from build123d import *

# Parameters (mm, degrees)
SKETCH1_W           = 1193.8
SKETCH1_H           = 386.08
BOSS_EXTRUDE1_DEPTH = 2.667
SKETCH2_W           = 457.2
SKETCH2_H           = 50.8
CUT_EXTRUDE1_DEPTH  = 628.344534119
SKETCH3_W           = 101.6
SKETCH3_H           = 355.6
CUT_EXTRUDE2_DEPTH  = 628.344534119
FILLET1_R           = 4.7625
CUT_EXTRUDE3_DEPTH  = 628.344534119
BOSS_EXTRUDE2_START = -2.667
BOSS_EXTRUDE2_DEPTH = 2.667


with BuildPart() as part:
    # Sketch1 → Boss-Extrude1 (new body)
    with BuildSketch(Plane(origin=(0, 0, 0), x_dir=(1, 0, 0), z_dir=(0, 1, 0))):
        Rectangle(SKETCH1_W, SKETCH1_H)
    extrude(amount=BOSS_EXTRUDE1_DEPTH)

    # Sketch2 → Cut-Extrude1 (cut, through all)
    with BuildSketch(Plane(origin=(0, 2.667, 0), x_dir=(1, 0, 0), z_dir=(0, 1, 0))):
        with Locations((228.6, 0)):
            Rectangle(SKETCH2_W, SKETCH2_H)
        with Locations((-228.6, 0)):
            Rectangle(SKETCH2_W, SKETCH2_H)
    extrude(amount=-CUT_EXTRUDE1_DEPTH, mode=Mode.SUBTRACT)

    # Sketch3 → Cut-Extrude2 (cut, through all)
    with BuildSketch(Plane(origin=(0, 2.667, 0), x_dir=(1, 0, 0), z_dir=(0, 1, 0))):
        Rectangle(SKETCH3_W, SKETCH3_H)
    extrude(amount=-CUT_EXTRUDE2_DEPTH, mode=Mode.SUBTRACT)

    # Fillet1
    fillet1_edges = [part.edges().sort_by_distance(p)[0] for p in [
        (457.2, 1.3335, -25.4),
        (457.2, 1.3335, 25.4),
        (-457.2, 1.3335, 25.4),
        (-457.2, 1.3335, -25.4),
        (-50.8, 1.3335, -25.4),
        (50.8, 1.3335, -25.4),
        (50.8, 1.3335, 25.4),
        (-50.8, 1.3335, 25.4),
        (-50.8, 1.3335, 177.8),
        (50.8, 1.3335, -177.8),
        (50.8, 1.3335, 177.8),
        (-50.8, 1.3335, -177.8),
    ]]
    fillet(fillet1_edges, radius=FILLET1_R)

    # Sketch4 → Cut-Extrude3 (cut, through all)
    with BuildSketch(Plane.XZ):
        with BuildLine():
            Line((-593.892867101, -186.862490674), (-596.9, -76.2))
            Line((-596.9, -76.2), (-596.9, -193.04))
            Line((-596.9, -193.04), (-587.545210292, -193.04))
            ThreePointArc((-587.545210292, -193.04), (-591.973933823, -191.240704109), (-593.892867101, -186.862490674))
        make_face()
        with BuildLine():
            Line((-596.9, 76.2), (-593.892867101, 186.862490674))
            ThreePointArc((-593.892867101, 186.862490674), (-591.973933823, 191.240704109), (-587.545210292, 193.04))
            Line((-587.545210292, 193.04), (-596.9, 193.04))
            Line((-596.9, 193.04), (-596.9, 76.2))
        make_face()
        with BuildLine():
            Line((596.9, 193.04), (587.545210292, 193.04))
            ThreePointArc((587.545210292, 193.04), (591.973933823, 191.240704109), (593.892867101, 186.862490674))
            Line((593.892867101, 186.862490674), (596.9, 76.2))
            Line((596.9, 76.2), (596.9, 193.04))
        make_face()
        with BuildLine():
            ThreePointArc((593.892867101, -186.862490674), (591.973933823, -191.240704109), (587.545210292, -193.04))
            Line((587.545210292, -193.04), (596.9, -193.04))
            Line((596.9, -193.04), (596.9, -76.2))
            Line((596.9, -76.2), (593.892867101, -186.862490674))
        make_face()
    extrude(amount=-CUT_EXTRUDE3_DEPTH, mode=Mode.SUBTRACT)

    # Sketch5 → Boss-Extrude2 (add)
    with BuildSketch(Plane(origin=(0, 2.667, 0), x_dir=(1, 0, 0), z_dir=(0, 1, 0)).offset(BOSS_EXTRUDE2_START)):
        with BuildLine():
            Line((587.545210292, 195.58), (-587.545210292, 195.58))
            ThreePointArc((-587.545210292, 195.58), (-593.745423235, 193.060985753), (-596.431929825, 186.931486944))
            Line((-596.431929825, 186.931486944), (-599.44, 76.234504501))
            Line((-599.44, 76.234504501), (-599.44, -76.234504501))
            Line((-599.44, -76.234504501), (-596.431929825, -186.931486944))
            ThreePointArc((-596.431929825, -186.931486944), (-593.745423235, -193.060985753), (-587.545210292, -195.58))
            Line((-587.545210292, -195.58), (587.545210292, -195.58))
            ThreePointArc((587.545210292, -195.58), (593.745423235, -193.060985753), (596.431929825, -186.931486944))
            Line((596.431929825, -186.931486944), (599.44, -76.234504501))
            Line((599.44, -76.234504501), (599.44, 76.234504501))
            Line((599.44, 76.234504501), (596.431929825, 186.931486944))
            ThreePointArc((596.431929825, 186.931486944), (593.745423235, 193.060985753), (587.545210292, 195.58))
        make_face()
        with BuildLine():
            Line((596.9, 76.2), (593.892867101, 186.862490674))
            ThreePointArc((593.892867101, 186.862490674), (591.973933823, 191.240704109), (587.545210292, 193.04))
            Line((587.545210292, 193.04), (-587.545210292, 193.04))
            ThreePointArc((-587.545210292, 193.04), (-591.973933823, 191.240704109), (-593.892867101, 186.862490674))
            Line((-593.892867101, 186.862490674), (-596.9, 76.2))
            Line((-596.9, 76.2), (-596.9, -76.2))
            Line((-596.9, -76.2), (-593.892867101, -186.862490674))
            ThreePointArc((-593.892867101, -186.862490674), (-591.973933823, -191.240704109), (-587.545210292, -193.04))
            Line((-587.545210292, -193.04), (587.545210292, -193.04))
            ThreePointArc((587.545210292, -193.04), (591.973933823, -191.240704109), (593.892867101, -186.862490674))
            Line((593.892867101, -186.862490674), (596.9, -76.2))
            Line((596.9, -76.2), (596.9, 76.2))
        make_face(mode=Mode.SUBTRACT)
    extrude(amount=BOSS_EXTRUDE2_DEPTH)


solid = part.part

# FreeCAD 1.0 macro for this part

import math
import FreeCAD as App
import Part
import Sketcher
Q = App.Units.Quantity


def edges_at(feature, points):
    """Names of the edges that pass closest to the given points."""
    edges = feature.Shape.Edges
    near = lambda p: min(range(len(edges)), key=lambda i: edges[i].distToShape(Part.Vertex(*p))[0])
    return sorted({f"Edge{near(p) + 1}" for p in points})


def add_polygon(sketch, points):
    """Adds a closed chain of lines whose ends are joined by coincident constraints."""
    first, n = sketch.GeometryCount, len(points)
    for a, b in zip(points, points[1:] + points[:1]):
        sketch.addGeometry(Part.LineSegment(App.Vector(*a, 0), App.Vector(*b, 0)), False)
    for i in range(n):
        sketch.addConstraint(Sketcher.Constraint("Coincident", first + i, 2, first + (i + 1) % n, 1))

doc = App.newDocument("Part")
params = doc.addObject("Spreadsheet::Sheet", "Params")
for row, (alias, value) in enumerate([
    ("sketch1_width", "47 in"),
    ("sketch1_height", "15.2 in"),
    ("pad1_length", "0.105 in"),
    ("sketch2_width", "36 in"),
    ("sketch2_height", "2 in"),
    ("sketch3_width", "4 in"),
    ("sketch3_height", "14 in"),
    ("fillet_radius", "0.1875 in"),
    ("sketch4_radius", "0.25 in"),
    ("sketch4_height", "4.6 in"),
    ("sketch5_height", "6 in"),
    ("sketch5_radius", "0.35 in"),
    ("sketch5_radius2", "0.25 in"),
    ("pad2_length", "0.105 in"),
], start=1):
    params.set(f"A{row}", alias)
    params.set(f"B{row}", "=" + value)
    params.setAlias(f"B{row}", alias)

body = doc.addObject("PartDesign::Body", "Body")

sketch1 = body.newObject("Sketcher::SketchObject", "Sketch")
sketch1.AttachmentSupport = (doc.getObject("XZ_Plane"), [""])
sketch1.MapMode = "FlatFace"
add_polygon(sketch1, [(-596.9, -193.04), (-596.9, 193.04), (596.9, 193.04), (596.9, -193.04)])
sketch1.addConstraint(Sketcher.Constraint("Vertical", 0))
sketch1.addConstraint(Sketcher.Constraint("Horizontal", 1))
sketch1.addConstraint(Sketcher.Constraint("Vertical", 2))
sketch1.addConstraint(Sketcher.Constraint("Horizontal", 3))
sketch1.addConstraint(Sketcher.Constraint("Symmetric", 0, 2, 2, 2, -1, 1))
sketch1.addConstraint(Sketcher.Constraint("DistanceX", 1, 1, 1, 2, Q("47 in")))
sketch1.addConstraint(Sketcher.Constraint("DistanceY", 0, 1, 0, 2, Q("15.2 in")))
sketch1.setExpression("Constraints[9]", "Params.sketch1_width")
sketch1.setExpression("Constraints[10]", "Params.sketch1_height")
pad1 = body.newObject("PartDesign::Pad", "Pad")
pad1.Profile = sketch1
pad1.setExpression("Length", "Params.pad1_length")
pad1.Reversed = True

sketch2 = body.newObject("Sketcher::SketchObject", "Sketch001")
sketch2.AttachmentSupport = (doc.getObject("XZ_Plane"), [""])
sketch2.MapMode = "FlatFace"
sketch2.AttachmentOffset = App.Placement(App.Vector(0, 0, -0.105 * 25.4), App.Rotation())
add_polygon(sketch2, [(457.2, 25.4), (457.2, -25.4), (-457.2, -25.4), (-457.2, 25.4)])
sketch2.addConstraint(Sketcher.Constraint("Vertical", 0))
sketch2.addConstraint(Sketcher.Constraint("Horizontal", 1))
sketch2.addConstraint(Sketcher.Constraint("Vertical", 2))
sketch2.addConstraint(Sketcher.Constraint("Horizontal", 3))
sketch2.addConstraint(Sketcher.Constraint("Symmetric", 0, 2, 2, 2, -1, 1))
sketch2.addConstraint(Sketcher.Constraint("DistanceX", 1, 2, 1, 1, Q("36 in")))
sketch2.addConstraint(Sketcher.Constraint("DistanceY", 0, 2, 0, 1, Q("2 in")))
sketch2.setExpression("Constraints[9]", "Params.sketch2_width")
sketch2.setExpression("Constraints[10]", "Params.sketch2_height")
pocket1 = body.newObject("PartDesign::Pocket", "Pocket")
pocket1.Profile = sketch2
pocket1.Type = "ThroughAll"
pocket1.Reversed = True

sketch3 = body.newObject("Sketcher::SketchObject", "Sketch002")
sketch3.AttachmentSupport = (doc.getObject("XZ_Plane"), [""])
sketch3.MapMode = "FlatFace"
sketch3.AttachmentOffset = App.Placement(App.Vector(0, 0, -0.105 * 25.4), App.Rotation())
add_polygon(sketch3, [(-50.8, -177.8), (-50.8, 177.8), (50.8, 177.8), (50.8, -177.8)])
sketch3.addConstraint(Sketcher.Constraint("Vertical", 0))
sketch3.addConstraint(Sketcher.Constraint("Horizontal", 1))
sketch3.addConstraint(Sketcher.Constraint("Vertical", 2))
sketch3.addConstraint(Sketcher.Constraint("Horizontal", 3))
sketch3.addConstraint(Sketcher.Constraint("Symmetric", 0, 2, 2, 2, -1, 1))
sketch3.addConstraint(Sketcher.Constraint("DistanceX", 1, 1, 1, 2, Q("4 in")))
sketch3.addConstraint(Sketcher.Constraint("DistanceY", 0, 1, 0, 2, Q("14 in")))
sketch3.setExpression("Constraints[9]", "Params.sketch3_width")
sketch3.setExpression("Constraints[10]", "Params.sketch3_height")
pocket2 = body.newObject("PartDesign::Pocket", "Pocket001")
pocket2.Profile = sketch3
pocket2.Type = "ThroughAll"
pocket2.Reversed = True
doc.recompute()

fillet = body.newObject("PartDesign::Fillet", "Fillet")
fillet.Base = (pocket2, edges_at(pocket2, [
    (457.2, 1.333, -25.4),
    (457.2, 1.333, 25.4),
    (-457.2, 1.333, 25.4),
    (-457.2, 1.333, -25.4),
    (-50.8, 1.333, -25.4),
    (50.8, 1.333, -25.4),
    (50.8, 1.333, 25.4),
    (-50.8, 1.333, 25.4),
    (-50.8, 1.333, 177.8),
    (50.8, 1.333, -177.8),
    (50.8, 1.333, 177.8),
    (-50.8, 1.333, -177.8),
]))
fillet.setExpression("Radius", "Params.fillet_radius")

sketch4 = body.newObject("Sketcher::SketchObject", "Sketch003")
sketch4.AttachmentSupport = (doc.getObject("XZ_Plane"), [""])
sketch4.MapMode = "FlatFace"
sketch4.addGeometry(Part.LineSegment(App.Vector(-593.892867, -186.862491, 0), App.Vector(-596.9, -76.2, 0)), False)
sketch4.addGeometry(Part.LineSegment(App.Vector(-596.9, -76.2, 0), App.Vector(-596.9, -193.04, 0)), False)
sketch4.addGeometry(Part.LineSegment(App.Vector(-596.9, -193.04, 0), App.Vector(-587.54521, -193.04, 0)), False)
sketch4.addGeometry(Part.ArcOfCircle(Part.Circle(App.Vector(-587.54521, -186.69, 0), App.Vector(0, 0, 1), 6.35), math.radians(-178.443433), math.radians(-90)), False)
sketch4.addGeometry(Part.LineSegment(App.Vector(-596.9, 76.2, 0), App.Vector(-593.892867, 186.862491, 0)), False)
sketch4.addGeometry(Part.ArcOfCircle(Part.Circle(App.Vector(-587.54521, 186.69, 0), App.Vector(0, 0, 1), 6.35), math.radians(90), math.radians(178.443433)), False)
sketch4.addGeometry(Part.LineSegment(App.Vector(-587.54521, 193.04, 0), App.Vector(-596.9, 193.04, 0)), False)
sketch4.addGeometry(Part.LineSegment(App.Vector(-596.9, 193.04, 0), App.Vector(-596.9, 76.2, 0)), False)
sketch4.addGeometry(Part.LineSegment(App.Vector(596.9, 193.04, 0), App.Vector(587.54521, 193.04, 0)), False)
sketch4.addGeometry(Part.ArcOfCircle(Part.Circle(App.Vector(587.54521, 186.69, 0), App.Vector(0, 0, 1), 6.35), math.radians(1.556567), math.radians(90)), False)
sketch4.addGeometry(Part.LineSegment(App.Vector(593.892867, 186.862491, 0), App.Vector(596.9, 76.2, 0)), False)
sketch4.addGeometry(Part.LineSegment(App.Vector(596.9, 76.2, 0), App.Vector(596.9, 193.04, 0)), False)
sketch4.addGeometry(Part.ArcOfCircle(Part.Circle(App.Vector(587.54521, -186.69, 0), App.Vector(0, 0, 1), 6.35), math.radians(-90), math.radians(-1.556567)), False)
sketch4.addGeometry(Part.LineSegment(App.Vector(587.54521, -193.04, 0), App.Vector(596.9, -193.04, 0)), False)
sketch4.addGeometry(Part.LineSegment(App.Vector(596.9, -193.04, 0), App.Vector(596.9, -76.2, 0)), False)
sketch4.addGeometry(Part.LineSegment(App.Vector(596.9, -76.2, 0), App.Vector(593.892867, -186.862491, 0)), False)
sketch4.addConstraint(Sketcher.Constraint("Coincident", 0, 2, 1, 1))
sketch4.addConstraint(Sketcher.Constraint("Coincident", 1, 2, 2, 1))
sketch4.addConstraint(Sketcher.Constraint("Tangent", 2, 2, 3, 2))
sketch4.addConstraint(Sketcher.Constraint("Tangent", 3, 1, 0, 1))
sketch4.addConstraint(Sketcher.Constraint("Tangent", 4, 2, 5, 2))
sketch4.addConstraint(Sketcher.Constraint("Tangent", 5, 1, 6, 1))
sketch4.addConstraint(Sketcher.Constraint("Coincident", 6, 2, 7, 1))
sketch4.addConstraint(Sketcher.Constraint("Coincident", 7, 2, 4, 1))
sketch4.addConstraint(Sketcher.Constraint("Tangent", 8, 2, 9, 2))
sketch4.addConstraint(Sketcher.Constraint("Tangent", 9, 1, 10, 1))
sketch4.addConstraint(Sketcher.Constraint("Coincident", 10, 2, 11, 1))
sketch4.addConstraint(Sketcher.Constraint("Coincident", 11, 2, 8, 1))
sketch4.addConstraint(Sketcher.Constraint("Tangent", 12, 1, 13, 1))
sketch4.addConstraint(Sketcher.Constraint("Coincident", 13, 2, 14, 1))
sketch4.addConstraint(Sketcher.Constraint("Coincident", 14, 2, 15, 1))
sketch4.addConstraint(Sketcher.Constraint("Tangent", 15, 2, 12, 2))
sketch4.addConstraint(Sketcher.Constraint("Vertical", 1))
sketch4.addConstraint(Sketcher.Constraint("Horizontal", 2))
sketch4.addConstraint(Sketcher.Constraint("Horizontal", 6))
sketch4.addConstraint(Sketcher.Constraint("Vertical", 7))
sketch4.addConstraint(Sketcher.Constraint("Horizontal", 8))
sketch4.addConstraint(Sketcher.Constraint("Vertical", 11))
sketch4.addConstraint(Sketcher.Constraint("Horizontal", 13))
sketch4.addConstraint(Sketcher.Constraint("Vertical", 14))
sketch4.addConstraint(Sketcher.Constraint("Equal", 3, 5))
sketch4.addConstraint(Sketcher.Constraint("Equal", 5, 9))
sketch4.addConstraint(Sketcher.Constraint("Equal", 9, 12))
sketch4.addConstraint(Sketcher.Constraint("Symmetric", 3, 3, 9, 3, -1, 1))
sketch4.addConstraint(Sketcher.Constraint("Symmetric", 5, 3, 12, 3, -1, 1))
sketch4.addConstraint(Sketcher.Constraint("Symmetric", 0, 2, 10, 2, -1, 1))
sketch4.addConstraint(Sketcher.Constraint("Symmetric", 7, 2, 14, 2, -1, 1))
sketch4.addConstraint(Sketcher.Constraint("Symmetric", 5, 3, 9, 3, -2))
sketch4.addConstraint(Sketcher.Constraint("Symmetric", 7, 2, 10, 2, -2))
sketch4.addConstraint(Sketcher.Constraint("Radius", 3, Q("0.25 in")))
sketch4.addConstraint(Sketcher.Constraint("DistanceY", 1, 2, 1, 1, Q("4.6 in")))
sketch4.addConstraint(Sketcher.Constraint("DistanceY", 0, 2, -1, 1, Q("3 in")))
sketch4.addConstraint(Sketcher.Constraint("DistanceX", 0, 2, -1, 1, Q("23.5 in")))
sketch4.addConstraint(Sketcher.Constraint("DistanceX", 2, 1, 2, 2, 9.35479))
sketch4.setExpression("Constraints[33]", "Params.sketch4_radius")
sketch4.setExpression("Constraints[34]", "Params.sketch4_height")
pocket3 = body.newObject("PartDesign::Pocket", "Pocket002")
pocket3.Profile = sketch4
pocket3.Type = "ThroughAll"

sketch5 = body.newObject("Sketcher::SketchObject", "Sketch004")
sketch5.AttachmentSupport = (doc.getObject("XZ_Plane"), [""])
sketch5.MapMode = "FlatFace"
sketch5.addGeometry(Part.LineSegment(App.Vector(587.54521, -195.58, 0), App.Vector(-587.54521, -195.58, 0)), False)
sketch5.addGeometry(Part.ArcOfCircle(Part.Circle(App.Vector(-587.54521, -186.69, 0), App.Vector(0, 0, 1), 8.89), math.radians(-178.443433), math.radians(-90)), False)
sketch5.addGeometry(Part.LineSegment(App.Vector(-596.43193, -186.931487, 0), App.Vector(-599.44, -76.234505, 0)), False)
sketch5.addGeometry(Part.LineSegment(App.Vector(-599.44, -76.234505, 0), App.Vector(-599.44, 76.234505, 0)), False)
sketch5.addGeometry(Part.LineSegment(App.Vector(-599.44, 76.234505, 0), App.Vector(-596.43193, 186.931487, 0)), False)
sketch5.addGeometry(Part.ArcOfCircle(Part.Circle(App.Vector(-587.54521, 186.69, 0), App.Vector(0, 0, 1), 8.89), math.radians(90), math.radians(178.443433)), False)
sketch5.addGeometry(Part.LineSegment(App.Vector(-587.54521, 195.58, 0), App.Vector(587.54521, 195.58, 0)), False)
sketch5.addGeometry(Part.ArcOfCircle(Part.Circle(App.Vector(587.54521, 186.69, 0), App.Vector(0, 0, 1), 8.89), math.radians(1.556567), math.radians(90)), False)
sketch5.addGeometry(Part.LineSegment(App.Vector(596.43193, 186.931487, 0), App.Vector(599.44, 76.234505, 0)), False)
sketch5.addGeometry(Part.LineSegment(App.Vector(599.44, 76.234505, 0), App.Vector(599.44, -76.234505, 0)), False)
sketch5.addGeometry(Part.LineSegment(App.Vector(599.44, -76.234505, 0), App.Vector(596.43193, -186.931487, 0)), False)
sketch5.addGeometry(Part.ArcOfCircle(Part.Circle(App.Vector(587.54521, -186.69, 0), App.Vector(0, 0, 1), 8.89), math.radians(-90), math.radians(-1.556567)), False)
sketch5.addGeometry(Part.LineSegment(App.Vector(593.892867, -186.862491, 0), App.Vector(596.9, -76.2, 0)), False)
sketch5.addGeometry(Part.LineSegment(App.Vector(596.9, -76.2, 0), App.Vector(596.9, 76.2, 0)), False)
sketch5.addGeometry(Part.LineSegment(App.Vector(596.9, 76.2, 0), App.Vector(593.892867, 186.862491, 0)), False)
sketch5.addGeometry(Part.ArcOfCircle(Part.Circle(App.Vector(587.54521, 186.69, 0), App.Vector(0, 0, 1), 6.35), math.radians(1.556567), math.radians(90)), False)
sketch5.addGeometry(Part.LineSegment(App.Vector(587.54521, 193.04, 0), App.Vector(-587.54521, 193.04, 0)), False)
sketch5.addGeometry(Part.ArcOfCircle(Part.Circle(App.Vector(-587.54521, 186.69, 0), App.Vector(0, 0, 1), 6.35), math.radians(90), math.radians(178.443433)), False)
sketch5.addGeometry(Part.LineSegment(App.Vector(-593.892867, 186.862491, 0), App.Vector(-596.9, 76.2, 0)), False)
sketch5.addGeometry(Part.LineSegment(App.Vector(-596.9, 76.2, 0), App.Vector(-596.9, -76.2, 0)), False)
sketch5.addGeometry(Part.LineSegment(App.Vector(-596.9, -76.2, 0), App.Vector(-593.892867, -186.862491, 0)), False)
sketch5.addGeometry(Part.ArcOfCircle(Part.Circle(App.Vector(-587.54521, -186.69, 0), App.Vector(0, 0, 1), 6.35), math.radians(-178.443433), math.radians(-90)), False)
sketch5.addGeometry(Part.LineSegment(App.Vector(-587.54521, -193.04, 0), App.Vector(587.54521, -193.04, 0)), False)
sketch5.addGeometry(Part.ArcOfCircle(Part.Circle(App.Vector(587.54521, -186.69, 0), App.Vector(0, 0, 1), 6.35), math.radians(-90), math.radians(-1.556567)), False)
sketch5.addConstraint(Sketcher.Constraint("Tangent", 0, 2, 1, 2))
sketch5.addConstraint(Sketcher.Constraint("Tangent", 1, 1, 2, 1))
sketch5.addConstraint(Sketcher.Constraint("Coincident", 2, 2, 3, 1))
sketch5.addConstraint(Sketcher.Constraint("Coincident", 3, 2, 4, 1))
sketch5.addConstraint(Sketcher.Constraint("Tangent", 4, 2, 5, 2))
sketch5.addConstraint(Sketcher.Constraint("Tangent", 5, 1, 6, 1))
sketch5.addConstraint(Sketcher.Constraint("Tangent", 6, 2, 7, 2))
sketch5.addConstraint(Sketcher.Constraint("Tangent", 7, 1, 8, 1))
sketch5.addConstraint(Sketcher.Constraint("Coincident", 8, 2, 9, 1))
sketch5.addConstraint(Sketcher.Constraint("Coincident", 9, 2, 10, 1))
sketch5.addConstraint(Sketcher.Constraint("Tangent", 10, 2, 11, 2))
sketch5.addConstraint(Sketcher.Constraint("Tangent", 11, 1, 0, 1))
sketch5.addConstraint(Sketcher.Constraint("Coincident", 12, 2, 13, 1))
sketch5.addConstraint(Sketcher.Constraint("Coincident", 13, 2, 14, 1))
sketch5.addConstraint(Sketcher.Constraint("Tangent", 14, 2, 15, 1))
sketch5.addConstraint(Sketcher.Constraint("Tangent", 15, 2, 16, 1))
sketch5.addConstraint(Sketcher.Constraint("Tangent", 16, 2, 17, 1))
sketch5.addConstraint(Sketcher.Constraint("Tangent", 17, 2, 18, 1))
sketch5.addConstraint(Sketcher.Constraint("Coincident", 18, 2, 19, 1))
sketch5.addConstraint(Sketcher.Constraint("Coincident", 19, 2, 20, 1))
sketch5.addConstraint(Sketcher.Constraint("Tangent", 20, 2, 21, 1))
sketch5.addConstraint(Sketcher.Constraint("Tangent", 21, 2, 22, 1))
sketch5.addConstraint(Sketcher.Constraint("Tangent", 22, 2, 23, 1))
sketch5.addConstraint(Sketcher.Constraint("Tangent", 23, 2, 12, 1))
sketch5.addConstraint(Sketcher.Constraint("Horizontal", 0))
sketch5.addConstraint(Sketcher.Constraint("Vertical", 3))
sketch5.addConstraint(Sketcher.Constraint("Horizontal", 6))
sketch5.addConstraint(Sketcher.Constraint("Vertical", 9))
sketch5.addConstraint(Sketcher.Constraint("Vertical", 13))
sketch5.addConstraint(Sketcher.Constraint("Horizontal", 16))
sketch5.addConstraint(Sketcher.Constraint("Vertical", 19))
sketch5.addConstraint(Sketcher.Constraint("Horizontal", 22))
sketch5.addConstraint(Sketcher.Constraint("Coincident", 15, 3, 7, 3))
sketch5.addConstraint(Sketcher.Constraint("Coincident", 17, 3, 5, 3))
sketch5.addConstraint(Sketcher.Constraint("Coincident", 21, 3, 1, 3))
sketch5.addConstraint(Sketcher.Constraint("Coincident", 23, 3, 11, 3))
sketch5.addConstraint(Sketcher.Constraint("Equal", 1, 5))
sketch5.addConstraint(Sketcher.Constraint("Equal", 5, 7))
sketch5.addConstraint(Sketcher.Constraint("Equal", 7, 11))
sketch5.addConstraint(Sketcher.Constraint("Equal", 17, 21))
sketch5.addConstraint(Sketcher.Constraint("Symmetric", 1, 3, 7, 3, -1, 1))
sketch5.addConstraint(Sketcher.Constraint("Symmetric", 2, 2, 8, 2, -1, 1))
sketch5.addConstraint(Sketcher.Constraint("Symmetric", 12, 2, 18, 2, -1, 1))
sketch5.addConstraint(Sketcher.Constraint("Parallel", 4, 10))
sketch5.addConstraint(Sketcher.Constraint("Parallel", 10, 12))
sketch5.addConstraint(Sketcher.Constraint("Parallel", 8, 14))
sketch5.addConstraint(Sketcher.Constraint("Parallel", 12, 18))
sketch5.addConstraint(Sketcher.Constraint("Parallel", 14, 20))
sketch5.addConstraint(Sketcher.Constraint("Horizontal", 4, 2, 7, 1))
sketch5.addConstraint(Sketcher.Constraint("Horizontal", 3, 2, 8, 2))
sketch5.addConstraint(Sketcher.Constraint("DistanceY", 13, 1, 13, 2, Q("6 in")))
sketch5.addConstraint(Sketcher.Constraint("Radius", 1, Q("0.35 in")))
sketch5.addConstraint(Sketcher.Constraint("Radius", 15, Q("0.25 in")))
sketch5.addConstraint(Sketcher.Constraint("DistanceY", 0, 2, -1, 1, Q("7.7 in")))
sketch5.addConstraint(Sketcher.Constraint("DistanceX", 2, 2, -1, 1, Q("23.6 in")))
sketch5.addConstraint(Sketcher.Constraint("DistanceX", -1, 1, 12, 2, Q("23.5 in")))
sketch5.addConstraint(Sketcher.Constraint("DistanceX", 0, 2, 0, 1, 1175.090421))
sketch5.setExpression("Constraints[50]", "Params.sketch5_height")
sketch5.setExpression("Constraints[51]", "Params.sketch5_radius")
sketch5.setExpression("Constraints[52]", "Params.sketch5_radius2")
pad2 = body.newObject("PartDesign::Pad", "Pad001")
pad2.Profile = sketch5
pad2.setExpression("Length", "Params.pad2_length")
pad2.Reversed = True

doc.recompute()
